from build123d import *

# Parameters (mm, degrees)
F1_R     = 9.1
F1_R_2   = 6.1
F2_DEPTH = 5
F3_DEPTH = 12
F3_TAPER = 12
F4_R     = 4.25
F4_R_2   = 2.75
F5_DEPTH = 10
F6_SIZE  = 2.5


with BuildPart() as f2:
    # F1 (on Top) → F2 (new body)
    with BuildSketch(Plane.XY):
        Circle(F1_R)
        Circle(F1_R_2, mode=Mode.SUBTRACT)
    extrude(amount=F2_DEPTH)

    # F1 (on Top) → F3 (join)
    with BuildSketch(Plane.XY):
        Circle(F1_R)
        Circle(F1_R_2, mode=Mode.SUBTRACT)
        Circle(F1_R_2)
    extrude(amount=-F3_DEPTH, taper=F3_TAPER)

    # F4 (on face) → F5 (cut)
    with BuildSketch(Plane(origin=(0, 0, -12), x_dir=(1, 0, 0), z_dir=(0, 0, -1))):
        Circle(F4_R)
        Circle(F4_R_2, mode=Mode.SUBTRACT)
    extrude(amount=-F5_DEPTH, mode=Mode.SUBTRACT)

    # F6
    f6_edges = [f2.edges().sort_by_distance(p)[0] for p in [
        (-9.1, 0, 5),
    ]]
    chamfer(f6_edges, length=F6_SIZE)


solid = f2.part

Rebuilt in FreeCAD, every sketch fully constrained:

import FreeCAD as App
import Part
import Sketcher
from FreeCAD import Vector


def edges_at(feature, points):
    """Names of the edges that pass closest to the given points."""
    edges = feature.Shape.Edges
    near = lambda p: min(range(len(edges)), key=lambda i: edges[i].distToShape(Part.Vertex(*p))[0])
    return sorted({f"Edge{near(p) + 1}" for p in points})

doc = App.newDocument("Part")
body = doc.addObject("PartDesign::Body", "Body")

# Sketch on XY plane
sketch1 = doc.addObject("Sketcher::SketchObject", "Sketch")
body.addObject(sketch1)
sketch1.AttachmentSupport = (doc.XY_Plane, [""])
sketch1.MapMode = "FlatFace"
sketch1.addGeometry([
    Part.Circle(Vector(0, 0, 0), Vector(0, 0, 1), 9),
    Part.Circle(Vector(0, 0, 0), Vector(0, 0, 1), 6),
], False)
sketch1.addConstraint([
    Sketcher.Constraint("Coincident", 0, 3, -1, 1),
    Sketcher.Constraint("Coincident", 1, 3, -1, 1),
    Sketcher.Constraint("Diameter", 0, 18.2),
    Sketcher.Constraint("Diameter", 1, 12.2),
])
pad1 = doc.addObject("PartDesign::Pad", "Pad")
body.addObject(pad1)
pad1.Profile = sketch1
pad1.Length = 5

# Sketch on XY plane
sketch2 = doc.addObject("Sketcher::SketchObject", "Sketch001")
body.addObject(sketch2)
sketch2.AttachmentSupport = (doc.XY_Plane, [""])
sketch2.MapMode = "FlatFace"
sketch2.addGeometry(Part.Circle(Vector(0, 0, 0), Vector(0, 0, 1), 9), False)
sketch2.addConstraint([
    Sketcher.Constraint("Coincident", 0, 3, -1, 1),
    Sketcher.Constraint("Diameter", 0, 18.2),
])
pad2 = doc.addObject("PartDesign::Pad", "Pad001")
body.addObject(pad2)
pad2.Profile = sketch2
pad2.Length = 12
pad2.Reversed = True
pad2.TaperAngle = -12

# Sketch on XY plane
sketch3 = doc.addObject("Sketcher::SketchObject", "Sketch002")
body.addObject(sketch3)
sketch3.AttachmentSupport = (doc.XY_Plane, [""])
sketch3.MapMode = "FlatFace"
sketch3.AttachmentOffset = App.Placement(Vector(0, 0, -12), App.Rotation())
sketch3.addGeometry([
    Part.Circle(Vector(0, 0, 0), Vector(0, 0, 1), 4.2),
    Part.Circle(Vector(0, 0, 0), Vector(0, 0, 1), 2.8),
], False)
sketch3.addConstraint([
    Sketcher.Constraint("Coincident", 0, 3, -1, 1),
    Sketcher.Constraint("Coincident", 1, 3, -1, 1),
    Sketcher.Constraint("Diameter", 0, 8.5),
    Sketcher.Constraint("Diameter", 1, 5.5),
])
pocket1 = doc.addObject("PartDesign::Pocket", "Pocket")
body.addObject(pocket1)
pocket1.Profile = sketch3
pocket1.Length = 10
pocket1.Reversed = True
doc.recompute()

chamfer = doc.addObject("PartDesign::Chamfer", "Chamfer")
body.addObject(chamfer)
chamfer.Base = (pocket1, edges_at(pocket1, [(-9.1, 0, 5)]))
chamfer.Size = 2.5

doc.recompute()
